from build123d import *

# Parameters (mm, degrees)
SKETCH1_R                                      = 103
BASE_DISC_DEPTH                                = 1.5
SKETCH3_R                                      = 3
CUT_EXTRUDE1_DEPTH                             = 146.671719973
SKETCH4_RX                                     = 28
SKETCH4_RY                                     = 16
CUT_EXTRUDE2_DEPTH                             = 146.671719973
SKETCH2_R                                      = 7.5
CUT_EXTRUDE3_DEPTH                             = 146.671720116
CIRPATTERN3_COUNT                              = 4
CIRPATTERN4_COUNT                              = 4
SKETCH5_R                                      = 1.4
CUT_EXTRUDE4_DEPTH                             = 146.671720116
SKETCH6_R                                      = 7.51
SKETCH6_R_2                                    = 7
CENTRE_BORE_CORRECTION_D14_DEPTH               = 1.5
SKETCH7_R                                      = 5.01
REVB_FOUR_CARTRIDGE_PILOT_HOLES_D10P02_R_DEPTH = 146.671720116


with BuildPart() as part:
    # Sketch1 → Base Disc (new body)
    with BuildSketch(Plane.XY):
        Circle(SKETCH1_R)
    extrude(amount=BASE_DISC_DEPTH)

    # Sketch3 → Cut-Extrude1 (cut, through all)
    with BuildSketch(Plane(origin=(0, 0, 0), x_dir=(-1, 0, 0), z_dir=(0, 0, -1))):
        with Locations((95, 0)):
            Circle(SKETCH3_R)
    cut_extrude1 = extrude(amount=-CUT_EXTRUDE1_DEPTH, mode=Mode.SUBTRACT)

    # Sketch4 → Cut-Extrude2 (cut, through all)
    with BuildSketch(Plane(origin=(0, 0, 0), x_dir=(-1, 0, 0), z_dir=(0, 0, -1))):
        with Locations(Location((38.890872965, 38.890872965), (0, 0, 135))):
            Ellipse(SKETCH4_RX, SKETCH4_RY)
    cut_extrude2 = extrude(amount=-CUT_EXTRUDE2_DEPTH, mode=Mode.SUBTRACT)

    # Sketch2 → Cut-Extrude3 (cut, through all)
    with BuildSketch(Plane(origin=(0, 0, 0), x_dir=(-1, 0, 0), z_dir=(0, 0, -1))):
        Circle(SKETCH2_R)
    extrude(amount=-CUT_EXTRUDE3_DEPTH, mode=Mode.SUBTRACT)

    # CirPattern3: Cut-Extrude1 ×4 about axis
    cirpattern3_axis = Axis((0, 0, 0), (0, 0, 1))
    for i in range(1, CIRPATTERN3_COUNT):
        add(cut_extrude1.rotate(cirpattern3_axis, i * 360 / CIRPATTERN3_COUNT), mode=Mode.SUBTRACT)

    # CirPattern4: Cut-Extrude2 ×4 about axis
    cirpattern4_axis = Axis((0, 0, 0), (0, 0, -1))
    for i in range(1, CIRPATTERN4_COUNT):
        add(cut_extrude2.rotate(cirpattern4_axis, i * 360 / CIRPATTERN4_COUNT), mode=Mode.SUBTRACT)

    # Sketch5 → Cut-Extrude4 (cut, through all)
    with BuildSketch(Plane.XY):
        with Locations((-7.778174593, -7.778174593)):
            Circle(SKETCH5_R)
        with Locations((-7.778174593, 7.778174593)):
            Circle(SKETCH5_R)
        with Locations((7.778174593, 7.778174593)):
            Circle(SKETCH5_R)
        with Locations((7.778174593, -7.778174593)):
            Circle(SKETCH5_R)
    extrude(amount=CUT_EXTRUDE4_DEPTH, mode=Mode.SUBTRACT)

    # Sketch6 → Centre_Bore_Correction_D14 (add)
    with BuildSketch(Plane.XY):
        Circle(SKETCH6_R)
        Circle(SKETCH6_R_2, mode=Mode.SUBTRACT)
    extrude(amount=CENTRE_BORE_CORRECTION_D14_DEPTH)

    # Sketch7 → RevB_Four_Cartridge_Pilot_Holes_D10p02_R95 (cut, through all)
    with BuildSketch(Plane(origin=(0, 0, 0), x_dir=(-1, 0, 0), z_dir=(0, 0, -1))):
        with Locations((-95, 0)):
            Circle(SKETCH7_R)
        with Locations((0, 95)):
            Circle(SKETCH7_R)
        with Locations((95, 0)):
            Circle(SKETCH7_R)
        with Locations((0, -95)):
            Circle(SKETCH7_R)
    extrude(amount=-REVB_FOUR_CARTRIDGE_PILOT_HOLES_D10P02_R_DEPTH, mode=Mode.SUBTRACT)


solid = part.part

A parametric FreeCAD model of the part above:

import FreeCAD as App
import Part
import Sketcher
from FreeCAD import Vector
Q = App.Units.Quantity

doc = App.newDocument("Part")
body = doc.addObject("PartDesign::Body", "Body")

sketch1 = doc.addObject("Sketcher::SketchObject", "Sketch")
body.addObject(sketch1)
sketch1.AttachmentSupport = (doc.XY_Plane, [""])
sketch1.MapMode = "FlatFace"
sketch1.addGeometry(Part.Circle(Vector(0, 0, 0), Vector(0, 0, 1), 103), False)
sketch1.addConstraint([
    Sketcher.Constraint("Coincident", 0, 3, -1, 1),
    Sketcher.Constraint("Diameter", 0, Q("206 mm")),
])
pad1 = doc.addObject("PartDesign::Pad", "Pad")
body.addObject(pad1)
pad1.Profile = sketch1
pad1.Length = 1.5

sketch2 = doc.addObject("Sketcher::SketchObject", "Sketch001")
body.addObject(sketch2)
sketch2.AttachmentSupport = (doc.XY_Plane, [""])
sketch2.MapMode = "FlatFace"
sketch2.addGeometry(Part.Circle(Vector(-95, 0, 0), Vector(0, 0, 1), 3), False)
sketch2.addConstraint([
    Sketcher.Constraint("PointOnObject", 0, 3, -1),
    Sketcher.Constraint("Diameter", 0, Q("6 mm")),
    Sketcher.Constraint("DistanceX", 0, 3, -1, 1, Q("95 mm")),
])
pocket1 = doc.addObject("PartDesign::Pocket", "Pocket")
body.addObject(pocket1)
pocket1.Profile = sketch2
pocket1.Type = "ThroughAll"
pocket1.Reversed = True

sketch3 = doc.addObject("Sketcher::SketchObject", "Sketch002")
body.addObject(sketch3)
sketch3.AttachmentSupport = (doc.XY_Plane, [""])
sketch3.MapMode = "FlatFace"
sketch3.addGeometry(Part.Ellipse(Vector(-19.091883, 58.689863, 0), Vector(-50.204581, 50.204581, 0), Vector(-38.890873, 38.890873, 0)), False)
sketch3.addConstraint(Sketcher.Constraint("Block", 0))
pocket2 = doc.addObject("PartDesign::Pocket", "Pocket001")
body.addObject(pocket2)
pocket2.Profile = sketch3
pocket2.Type = "ThroughAll"
pocket2.Reversed = True

sketch4 = doc.addObject("Sketcher::SketchObject", "Sketch003")
body.addObject(sketch4)
sketch4.AttachmentSupport = (doc.XY_Plane, [""])
sketch4.MapMode = "FlatFace"
sketch4.addGeometry(Part.Circle(Vector(0, 0, 0), Vector(0, 0, 1), 8), False)
sketch4.addConstraint([
    Sketcher.Constraint("Coincident", 0, 3, -1, 1),
    Sketcher.Constraint("Diameter", 0, Q("15 mm")),
])
pocket3 = doc.addObject("PartDesign::Pocket", "Pocket002")
body.addObject(pocket3)
pocket3.Profile = sketch4
pocket3.Type = "ThroughAll"
pocket3.Reversed = True
doc.recompute()

polarpattern = doc.addObject("PartDesign::PolarPattern", "PolarPattern")
body.addObject(polarpattern)
polarpattern.Originals = [pocket1]
polarpattern.Axis = (doc.Z_Axis, [""])
polarpattern.Angle = 360
polarpattern.Occurrences = 4
body.Tip = polarpattern
doc.recompute()

polarpattern2 = doc.addObject("PartDesign::PolarPattern", "PolarPattern001")
body.addObject(polarpattern2)
polarpattern2.Originals = [pocket2]
polarpattern2.Axis = (doc.Z_Axis, [""])
polarpattern2.Angle = 360
polarpattern2.Occurrences = 4
body.Tip = polarpattern2

sketch5 = doc.addObject("Sketcher::SketchObject", "Sketch004")
body.addObject(sketch5)
sketch5.AttachmentSupport = (doc.XY_Plane, [""])
sketch5.MapMode = "FlatFace"
sketch5.addGeometry([
    Part.Circle(Vector(-7.8, -7.8, 0), Vector(0, 0, 1), 1.4),
    Part.Circle(Vector(-7.8, 7.8, 0), Vector(0, 0, 1), 1.4),
    Part.Circle(Vector(7.8, 7.8, 0), Vector(0, 0, 1), 1.4),
    Part.Circle(Vector(7.8, -7.8, 0), Vector(0, 0, 1), 1.4),
], False)
sketch5.addConstraint([
    Sketcher.Constraint("Equal", 0, 1),
    Sketcher.Constraint("Equal", 1, 2),
    Sketcher.Constraint("Equal", 2, 3),
    Sketcher.Constraint("Symmetric", 0, 3, 2, 3, -1, 1),
    Sketcher.Constraint("Symmetric", 1, 3, 3, 3, -1, 1),
    Sketcher.Constraint("Symmetric", 1, 3, 2, 3, -2),
    Sketcher.Constraint("Diameter", 0, Q("2.8 mm")),
    Sketcher.Constraint("DistanceY", 0, 3, 1, 3, Q("15.556349 mm")),
    Sketcher.Constraint("DistanceX", 1, 3, 2, 3, Q("15.556349 mm")),
])
pocket4 = doc.addObject("PartDesign::Pocket", "Pocket003")
body.addObject(pocket4)
pocket4.Profile = sketch5
pocket4.Type = "ThroughAll"
pocket4.Reversed = True

sketch6 = doc.addObject("Sketcher::SketchObject", "Sketch005")
body.addObject(sketch6)
sketch6.AttachmentSupport = (doc.XY_Plane, [""])
sketch6.MapMode = "FlatFace"
sketch6.addGeometry([
    Part.Circle(Vector(0, 0, 0), Vector(0, 0, 1), 8),
    Part.Circle(Vector(0, 0, 0), Vector(0, 0, 1), 7),
], False)
sketch6.addConstraint([
    Sketcher.Constraint("Coincident", 0, 3, -1, 1),
    Sketcher.Constraint("Coincident", 1, 3, -1, 1),
    Sketcher.Constraint("Diameter", 1, Q("14 mm")),
    Sketcher.Constraint("Diameter", 0, Q("15.02 mm")),
])
pad2 = doc.addObject("PartDesign::Pad", "Pad001")
body.addObject(pad2)
pad2.Profile = sketch6
pad2.Length = 1.5

sketch7 = doc.addObject("Sketcher::SketchObject", "Sketch006")
body.addObject(sketch7)
sketch7.AttachmentSupport = (doc.XY_Plane, [""])
sketch7.MapMode = "FlatFace"
sketch7.addGeometry([
    Part.Circle(Vector(95, 0, 0), Vector(0, 0, 1), 5),
    Part.Circle(Vector(0, 95, 0), Vector(0, 0, 1), 5),
    Part.Circle(Vector(-95, 0, 0), Vector(0, 0, 1), 5),
    Part.Circle(Vector(0, -95, 0), Vector(0, 0, 1), 5),
], False)
sketch7.addConstraint([
    Sketcher.Constraint("Equal", 0, 1),
    Sketcher.Constraint("Equal", 1, 2),
    Sketcher.Constraint("Equal", 2, 3),
    Sketcher.Constraint("Symmetric", 0, 3, 2, 3, -1, 1),
    Sketcher.Constraint("Symmetric", 1, 3, 3, 3, -1, 1),
    Sketcher.Constraint("PointOnObject", 0, 3, -1),
    Sketcher.Constraint("PointOnObject", 1, 3, -2),
    Sketcher.Constraint("Diameter", 0, Q("10.02 mm")),
    Sketcher.Constraint("DistanceX", -1, 1, 0, 3, Q("95 mm")),
    Sketcher.Constraint("DistanceY", -1, 1, 1, 3, Q("95 mm")),
])
pocket5 = doc.addObject("PartDesign::Pocket", "Pocket004")
body.addObject(pocket5)
pocket5.Profile = sketch7
pocket5.Type = "ThroughAll"
pocket5.Reversed = True

doc.recompute()
